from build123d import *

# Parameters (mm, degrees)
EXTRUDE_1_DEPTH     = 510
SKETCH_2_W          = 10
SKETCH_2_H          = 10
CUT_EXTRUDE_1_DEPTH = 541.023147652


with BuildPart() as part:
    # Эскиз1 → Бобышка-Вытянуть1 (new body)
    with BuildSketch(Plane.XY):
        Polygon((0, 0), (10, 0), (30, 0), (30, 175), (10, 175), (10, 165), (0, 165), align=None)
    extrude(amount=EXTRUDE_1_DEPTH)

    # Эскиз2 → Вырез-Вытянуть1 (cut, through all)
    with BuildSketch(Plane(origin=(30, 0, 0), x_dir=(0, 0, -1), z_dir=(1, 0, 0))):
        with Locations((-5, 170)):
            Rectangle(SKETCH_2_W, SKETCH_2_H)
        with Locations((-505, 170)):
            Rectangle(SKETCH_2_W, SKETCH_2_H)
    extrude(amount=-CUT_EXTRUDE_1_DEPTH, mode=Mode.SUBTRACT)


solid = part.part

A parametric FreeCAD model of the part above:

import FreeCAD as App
import Part
import Sketcher

doc = App.newDocument("Part")
body = doc.addObject("PartDesign::Body", "Body")

# Sketch on XY plane
sketch1 = body.newObject("Sketcher::SketchObject", "Sketch")
sketch1.AttachmentSupport = (doc.getObject("XY_Plane"), [""])
sketch1.MapMode = "FlatFace"
sketch1.addGeometry([
    Part.LineSegment(App.Vector(0, 0, 0), App.Vector(30, 0, 0)),  # 0
    Part.LineSegment(App.Vector(30, 0, 0), App.Vector(30, 175, 0)),  # 1
    Part.LineSegment(App.Vector(30, 175, 0), App.Vector(10, 175, 0)),  # 2
    Part.LineSegment(App.Vector(10, 175, 0), App.Vector(10, 165, 0)),  # 3
    Part.LineSegment(App.Vector(10, 165, 0), App.Vector(0, 165, 0)),  # 4
    Part.LineSegment(App.Vector(0, 165, 0), App.Vector(0, 0, 0)),  # 5
], False)
sketch1.addConstraint([
    Sketcher.Constraint("Coincident", 0, 2, 1, 1),
    Sketcher.Constraint("Coincident", 1, 2, 2, 1),
    Sketcher.Constraint("Coincident", 2, 2, 3, 1),
    Sketcher.Constraint("Coincident", 3, 2, 4, 1),
    Sketcher.Constraint("Coincident", 4, 2, 5, 1),
    Sketcher.Constraint("Coincident", 5, 2, 0, 1),
    Sketcher.Constraint("Horizontal", 0),
    Sketcher.Constraint("Vertical", 1),
    Sketcher.Constraint("Horizontal", 2),
    Sketcher.Constraint("Vertical", 3),
    Sketcher.Constraint("Horizontal", 4),
    Sketcher.Constraint("Vertical", 5),
    Sketcher.Constraint("Coincident", 5, 2, -1, 1),
    Sketcher.Constraint("Equal", 4, 3),
    Sketcher.Constraint("DistanceX", 0, 1, 0, 2, 30.0),
    Sketcher.Constraint("DistanceX", 2, 2, 2, 1, 20.0),
    Sketcher.Constraint("DistanceY", 1, 1, 1, 2, 175.0),
])
pad1 = body.newObject("PartDesign::Pad", "Pad")
pad1.Profile = sketch1
pad1.Length = 510

# Sketch on YZ plane
sketch2 = body.newObject("Sketcher::SketchObject", "Sketch001")
sketch2.AttachmentSupport = (doc.getObject("YZ_Plane"), [""])
sketch2.MapMode = "FlatFace"
sketch2.AttachmentOffset = App.Placement(App.Vector(0, 0, 30), App.Rotation())
sketch2.addGeometry([
    Part.LineSegment(App.Vector(175, 10, 0), App.Vector(165, 10, 0)),  # 0
    Part.LineSegment(App.Vector(165, 10, 0), App.Vector(165, 0, 0)),  # 1
    Part.LineSegment(App.Vector(165, 0, 0), App.Vector(175, 0, 0)),  # 2
    Part.LineSegment(App.Vector(175, 0, 0), App.Vector(175, 10, 0)),  # 3
    Part.LineSegment(App.Vector(175, 510, 0), App.Vector(165, 510, 0)),  # 4
    Part.LineSegment(App.Vector(165, 510, 0), App.Vector(165, 500, 0)),  # 5
    Part.LineSegment(App.Vector(165, 500, 0), App.Vector(175, 500, 0)),  # 6
    Part.LineSegment(App.Vector(175, 500, 0), App.Vector(175, 510, 0)),  # 7
], False)
sketch2.addConstraint([
    Sketcher.Constraint("Coincident", 0, 2, 1, 1),
    Sketcher.Constraint("Coincident", 1, 2, 2, 1),
    Sketcher.Constraint("Coincident", 2, 2, 3, 1),
    Sketcher.Constraint("Coincident", 3, 2, 0, 1),
    Sketcher.Constraint("Coincident", 4, 2, 5, 1),
    Sketcher.Constraint("Coincident", 5, 2, 6, 1),
    Sketcher.Constraint("Coincident", 6, 2, 7, 1),
    Sketcher.Constraint("Coincident", 7, 2, 4, 1),
    Sketcher.Constraint("Horizontal", 0),
    Sketcher.Constraint("Vertical", 1),
    Sketcher.Constraint("Horizontal", 2),
    Sketcher.Constraint("Vertical", 3),
    Sketcher.Constraint("Horizontal", 4),
    Sketcher.Constraint("Vertical", 5),
    Sketcher.Constraint("Horizontal", 6),
    Sketcher.Constraint("Vertical", 7),
    Sketcher.Constraint("PointOnObject", 1, 2, -1),
    Sketcher.Constraint("Vertical", 1, 2, 4, 2),
    Sketcher.Constraint("Vertical", 3, 2, 6, 2),
    Sketcher.Constraint("Equal", 6, 1),
    Sketcher.Constraint("Equal", 3, 5),
    Sketcher.Constraint("DistanceX", 0, 2, 0, 1, 10.0),
    Sketcher.Constraint("DistanceX", -1, 1, 0, 2, 165.0),
    Sketcher.Constraint("DistanceY", -1, 1, 4, 2, 510.0),
])
pocket1 = body.newObject("PartDesign::Pocket", "Pocket")
pocket1.Profile = sketch2
pocket1.Type = "ThroughAll"

doc.recompute()
